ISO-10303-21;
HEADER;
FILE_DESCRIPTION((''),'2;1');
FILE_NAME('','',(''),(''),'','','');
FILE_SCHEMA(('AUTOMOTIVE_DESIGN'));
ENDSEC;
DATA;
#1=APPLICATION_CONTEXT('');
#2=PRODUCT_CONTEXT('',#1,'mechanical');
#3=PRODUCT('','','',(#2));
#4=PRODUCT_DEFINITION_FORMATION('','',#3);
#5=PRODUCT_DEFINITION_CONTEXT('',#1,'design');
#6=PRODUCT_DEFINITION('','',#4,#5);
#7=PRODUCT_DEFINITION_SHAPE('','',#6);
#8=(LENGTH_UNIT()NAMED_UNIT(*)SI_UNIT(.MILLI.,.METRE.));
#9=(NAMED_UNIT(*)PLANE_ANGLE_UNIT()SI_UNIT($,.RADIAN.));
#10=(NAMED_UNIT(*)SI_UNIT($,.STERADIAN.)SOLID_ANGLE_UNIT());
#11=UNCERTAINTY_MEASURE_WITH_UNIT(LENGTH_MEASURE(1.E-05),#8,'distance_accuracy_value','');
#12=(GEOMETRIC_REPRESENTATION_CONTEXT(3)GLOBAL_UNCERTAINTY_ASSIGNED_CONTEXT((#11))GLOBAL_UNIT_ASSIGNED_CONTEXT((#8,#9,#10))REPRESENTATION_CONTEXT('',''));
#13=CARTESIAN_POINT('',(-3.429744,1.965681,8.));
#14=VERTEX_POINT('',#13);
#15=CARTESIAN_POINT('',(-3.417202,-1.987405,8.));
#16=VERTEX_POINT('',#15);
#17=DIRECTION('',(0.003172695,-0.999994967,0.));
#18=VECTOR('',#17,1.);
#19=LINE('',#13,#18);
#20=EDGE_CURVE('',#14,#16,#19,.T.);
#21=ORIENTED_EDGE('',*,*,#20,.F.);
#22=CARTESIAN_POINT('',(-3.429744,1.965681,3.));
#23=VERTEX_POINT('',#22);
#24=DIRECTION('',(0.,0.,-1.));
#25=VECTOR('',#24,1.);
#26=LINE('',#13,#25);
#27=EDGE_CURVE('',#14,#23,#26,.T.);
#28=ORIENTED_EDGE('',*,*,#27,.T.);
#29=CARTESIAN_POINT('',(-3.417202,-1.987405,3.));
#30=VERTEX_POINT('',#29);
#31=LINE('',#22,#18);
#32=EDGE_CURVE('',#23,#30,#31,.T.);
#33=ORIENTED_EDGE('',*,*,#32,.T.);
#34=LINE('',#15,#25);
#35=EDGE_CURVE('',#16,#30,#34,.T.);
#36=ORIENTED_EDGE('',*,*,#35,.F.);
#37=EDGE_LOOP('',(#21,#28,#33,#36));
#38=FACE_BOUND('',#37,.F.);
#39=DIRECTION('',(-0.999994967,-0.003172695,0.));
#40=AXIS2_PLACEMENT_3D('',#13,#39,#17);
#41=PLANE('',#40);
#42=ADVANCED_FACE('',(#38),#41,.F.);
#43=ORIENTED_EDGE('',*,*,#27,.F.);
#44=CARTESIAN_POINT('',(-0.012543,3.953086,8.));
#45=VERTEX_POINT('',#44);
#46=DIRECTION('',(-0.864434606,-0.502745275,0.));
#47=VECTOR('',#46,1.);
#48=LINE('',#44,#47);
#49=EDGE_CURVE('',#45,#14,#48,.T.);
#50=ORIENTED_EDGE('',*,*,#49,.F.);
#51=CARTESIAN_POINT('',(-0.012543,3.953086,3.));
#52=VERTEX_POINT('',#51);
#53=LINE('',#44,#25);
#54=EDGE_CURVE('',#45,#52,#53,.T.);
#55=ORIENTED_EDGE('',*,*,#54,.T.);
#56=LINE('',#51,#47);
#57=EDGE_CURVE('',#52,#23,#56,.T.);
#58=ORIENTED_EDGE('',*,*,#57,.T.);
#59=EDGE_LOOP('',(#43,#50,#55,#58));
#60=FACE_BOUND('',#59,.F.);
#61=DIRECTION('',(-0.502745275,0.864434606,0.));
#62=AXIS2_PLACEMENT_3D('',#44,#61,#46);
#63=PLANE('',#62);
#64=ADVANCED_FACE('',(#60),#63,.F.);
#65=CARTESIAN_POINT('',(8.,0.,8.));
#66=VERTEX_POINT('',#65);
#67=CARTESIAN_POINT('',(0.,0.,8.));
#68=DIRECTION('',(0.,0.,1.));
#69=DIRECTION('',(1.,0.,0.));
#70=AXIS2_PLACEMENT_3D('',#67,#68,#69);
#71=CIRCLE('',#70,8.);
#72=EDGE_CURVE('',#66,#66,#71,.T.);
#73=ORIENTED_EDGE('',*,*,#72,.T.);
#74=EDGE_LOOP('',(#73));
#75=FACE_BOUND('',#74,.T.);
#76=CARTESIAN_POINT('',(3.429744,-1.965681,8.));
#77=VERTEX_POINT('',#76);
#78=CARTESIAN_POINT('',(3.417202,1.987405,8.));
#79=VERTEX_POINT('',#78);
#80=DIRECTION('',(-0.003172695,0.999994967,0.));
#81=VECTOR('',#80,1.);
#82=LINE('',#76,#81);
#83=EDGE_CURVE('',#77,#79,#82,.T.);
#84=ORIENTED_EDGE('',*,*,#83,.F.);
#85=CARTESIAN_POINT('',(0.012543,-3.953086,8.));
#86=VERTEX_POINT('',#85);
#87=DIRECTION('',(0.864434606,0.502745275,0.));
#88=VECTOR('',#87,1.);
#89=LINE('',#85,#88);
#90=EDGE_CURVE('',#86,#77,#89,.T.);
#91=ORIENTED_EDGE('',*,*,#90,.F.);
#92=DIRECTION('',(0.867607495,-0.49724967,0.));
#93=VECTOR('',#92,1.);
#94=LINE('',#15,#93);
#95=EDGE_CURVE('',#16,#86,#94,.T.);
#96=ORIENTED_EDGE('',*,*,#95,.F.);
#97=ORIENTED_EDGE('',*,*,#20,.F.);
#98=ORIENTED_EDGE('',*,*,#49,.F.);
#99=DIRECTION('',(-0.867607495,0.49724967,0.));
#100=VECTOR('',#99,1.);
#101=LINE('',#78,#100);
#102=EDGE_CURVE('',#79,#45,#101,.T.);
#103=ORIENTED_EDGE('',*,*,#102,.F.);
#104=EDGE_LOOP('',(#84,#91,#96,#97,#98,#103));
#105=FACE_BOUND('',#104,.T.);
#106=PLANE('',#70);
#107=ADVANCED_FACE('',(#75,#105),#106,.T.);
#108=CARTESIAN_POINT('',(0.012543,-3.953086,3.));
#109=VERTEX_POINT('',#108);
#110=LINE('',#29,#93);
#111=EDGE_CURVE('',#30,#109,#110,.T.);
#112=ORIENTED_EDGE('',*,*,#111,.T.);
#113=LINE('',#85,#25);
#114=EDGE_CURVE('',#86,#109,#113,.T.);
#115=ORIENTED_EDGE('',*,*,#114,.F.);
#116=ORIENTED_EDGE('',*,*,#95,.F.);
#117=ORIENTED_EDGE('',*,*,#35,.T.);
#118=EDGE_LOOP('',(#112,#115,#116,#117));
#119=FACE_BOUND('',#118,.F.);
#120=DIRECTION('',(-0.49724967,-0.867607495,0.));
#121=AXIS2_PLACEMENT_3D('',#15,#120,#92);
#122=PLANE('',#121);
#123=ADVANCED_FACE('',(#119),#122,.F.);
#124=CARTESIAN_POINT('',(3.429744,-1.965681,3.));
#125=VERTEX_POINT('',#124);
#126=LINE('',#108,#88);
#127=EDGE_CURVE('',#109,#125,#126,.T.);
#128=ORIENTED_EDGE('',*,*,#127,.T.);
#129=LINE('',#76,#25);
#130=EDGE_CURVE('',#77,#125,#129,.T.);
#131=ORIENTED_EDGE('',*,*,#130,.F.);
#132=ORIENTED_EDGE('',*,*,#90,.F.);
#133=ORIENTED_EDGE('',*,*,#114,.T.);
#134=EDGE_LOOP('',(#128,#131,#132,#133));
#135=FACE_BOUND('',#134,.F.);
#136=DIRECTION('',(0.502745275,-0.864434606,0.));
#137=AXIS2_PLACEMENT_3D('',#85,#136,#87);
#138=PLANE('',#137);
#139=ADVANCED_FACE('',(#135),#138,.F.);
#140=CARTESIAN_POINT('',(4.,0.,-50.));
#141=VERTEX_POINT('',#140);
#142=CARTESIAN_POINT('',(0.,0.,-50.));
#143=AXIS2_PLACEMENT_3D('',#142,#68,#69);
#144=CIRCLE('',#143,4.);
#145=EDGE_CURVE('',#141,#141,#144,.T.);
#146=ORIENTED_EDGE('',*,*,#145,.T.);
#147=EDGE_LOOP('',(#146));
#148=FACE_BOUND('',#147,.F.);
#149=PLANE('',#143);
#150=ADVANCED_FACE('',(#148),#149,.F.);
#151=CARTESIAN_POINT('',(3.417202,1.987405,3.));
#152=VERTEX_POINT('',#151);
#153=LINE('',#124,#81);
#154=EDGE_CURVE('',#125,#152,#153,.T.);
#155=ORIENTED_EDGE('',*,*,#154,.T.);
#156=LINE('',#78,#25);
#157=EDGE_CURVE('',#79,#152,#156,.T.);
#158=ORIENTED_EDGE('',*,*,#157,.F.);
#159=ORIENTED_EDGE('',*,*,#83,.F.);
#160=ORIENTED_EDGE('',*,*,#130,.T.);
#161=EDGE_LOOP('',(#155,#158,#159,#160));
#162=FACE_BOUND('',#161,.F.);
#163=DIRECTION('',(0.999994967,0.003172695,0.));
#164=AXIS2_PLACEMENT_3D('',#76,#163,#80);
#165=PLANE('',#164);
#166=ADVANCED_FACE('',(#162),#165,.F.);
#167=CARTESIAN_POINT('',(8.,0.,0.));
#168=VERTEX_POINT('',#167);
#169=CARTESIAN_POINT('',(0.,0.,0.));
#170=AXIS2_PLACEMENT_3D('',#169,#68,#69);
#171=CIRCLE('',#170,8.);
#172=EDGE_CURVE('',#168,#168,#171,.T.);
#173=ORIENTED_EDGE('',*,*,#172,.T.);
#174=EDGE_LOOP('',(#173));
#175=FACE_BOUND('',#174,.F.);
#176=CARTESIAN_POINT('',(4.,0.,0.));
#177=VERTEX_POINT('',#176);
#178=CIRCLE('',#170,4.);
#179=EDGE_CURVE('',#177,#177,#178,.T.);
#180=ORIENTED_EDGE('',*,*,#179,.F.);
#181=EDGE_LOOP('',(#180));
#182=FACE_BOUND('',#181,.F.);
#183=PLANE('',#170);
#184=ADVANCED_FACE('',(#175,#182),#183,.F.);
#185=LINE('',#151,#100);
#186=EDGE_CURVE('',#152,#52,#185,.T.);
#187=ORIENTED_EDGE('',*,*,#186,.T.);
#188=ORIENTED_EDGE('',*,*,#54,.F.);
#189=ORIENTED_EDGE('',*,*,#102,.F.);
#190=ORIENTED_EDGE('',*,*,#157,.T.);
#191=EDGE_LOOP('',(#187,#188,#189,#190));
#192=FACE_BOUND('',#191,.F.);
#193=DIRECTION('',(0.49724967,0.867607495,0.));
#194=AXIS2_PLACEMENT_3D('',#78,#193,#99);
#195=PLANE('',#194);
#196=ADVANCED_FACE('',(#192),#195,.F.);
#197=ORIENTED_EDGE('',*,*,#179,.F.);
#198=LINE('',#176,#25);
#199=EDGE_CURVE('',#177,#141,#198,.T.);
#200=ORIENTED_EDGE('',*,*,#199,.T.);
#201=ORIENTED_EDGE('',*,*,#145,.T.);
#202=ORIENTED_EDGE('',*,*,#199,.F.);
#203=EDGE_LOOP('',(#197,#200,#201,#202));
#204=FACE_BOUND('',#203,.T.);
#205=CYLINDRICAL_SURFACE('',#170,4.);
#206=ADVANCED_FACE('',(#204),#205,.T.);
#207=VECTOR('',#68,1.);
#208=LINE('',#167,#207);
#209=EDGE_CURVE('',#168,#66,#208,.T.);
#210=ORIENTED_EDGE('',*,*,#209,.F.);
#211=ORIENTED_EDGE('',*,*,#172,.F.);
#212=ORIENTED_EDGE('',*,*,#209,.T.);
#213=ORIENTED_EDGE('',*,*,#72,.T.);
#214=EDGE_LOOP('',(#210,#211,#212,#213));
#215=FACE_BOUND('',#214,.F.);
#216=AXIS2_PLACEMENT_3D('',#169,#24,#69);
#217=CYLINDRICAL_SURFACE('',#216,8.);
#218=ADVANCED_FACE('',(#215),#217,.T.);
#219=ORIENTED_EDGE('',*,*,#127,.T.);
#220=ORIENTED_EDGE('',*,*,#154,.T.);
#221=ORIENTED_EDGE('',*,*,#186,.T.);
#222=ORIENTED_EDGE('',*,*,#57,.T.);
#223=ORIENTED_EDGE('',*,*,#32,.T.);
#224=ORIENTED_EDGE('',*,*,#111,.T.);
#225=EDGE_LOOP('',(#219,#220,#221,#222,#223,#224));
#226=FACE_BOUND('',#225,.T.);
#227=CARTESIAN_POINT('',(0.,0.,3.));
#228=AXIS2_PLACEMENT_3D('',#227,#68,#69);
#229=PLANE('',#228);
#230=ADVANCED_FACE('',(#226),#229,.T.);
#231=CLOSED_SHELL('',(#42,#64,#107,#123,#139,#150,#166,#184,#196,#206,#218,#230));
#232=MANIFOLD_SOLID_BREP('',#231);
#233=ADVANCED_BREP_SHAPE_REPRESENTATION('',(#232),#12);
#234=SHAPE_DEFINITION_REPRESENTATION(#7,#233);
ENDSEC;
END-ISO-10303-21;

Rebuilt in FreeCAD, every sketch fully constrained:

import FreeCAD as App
import Part
import Sketcher

V = App.Vector
Q = App.Units.Quantity

doc = App.newDocument("Part")
body = doc.addObject("PartDesign::Body", "Body")

sketch1 = body.newObject("Sketcher::SketchObject", "Sketch")
sketch1.AttachmentSupport = (doc.getObject("XY_Plane"), [""])
sketch1.MapMode = "FlatFace"
sketch1.addGeometry(Part.Circle(V(0, 0, 0), V(0, 0, 1), 4), False)
sketch1.addConstraint(Sketcher.Constraint("Coincident", 0, 3, -1, 1))
sketch1.addConstraint(Sketcher.Constraint("Diameter", 0, Q("8 mm")))
pad1 = body.newObject("PartDesign::Pad", "Pad")
pad1.Profile = sketch1
pad1.Length = 50
pad1.Reversed = True

sketch2 = body.newObject("Sketcher::SketchObject", "Sketch001")
sketch2.AttachmentSupport = (doc.getObject("XY_Plane"), [""])
sketch2.MapMode = "FlatFace"
sketch2.addGeometry(Part.Circle(V(0, 0, 0), V(0, 0, 1), 8), False)
sketch2.addConstraint(Sketcher.Constraint("Coincident", 0, 3, -1, 1))
sketch2.addConstraint(Sketcher.Constraint("Diameter", 0, Q("16 mm")))
pad2 = body.newObject("PartDesign::Pad", "Pad001")
pad2.Profile = sketch2
pad2.Length = 8

sketch3 = body.newObject("Sketcher::SketchObject", "Sketch002")
sketch3.AttachmentSupport = (doc.getObject("XY_Plane"), [""])
sketch3.MapMode = "FlatFace"
sketch3.AttachmentOffset = App.Placement(V(0, 0, 8), App.Rotation())
sketch3.addGeometry(Part.LineSegment(V(-0.012543, 3.953086, 0), V(-3.429744, 1.965681, 0)), False)
sketch3.addGeometry(Part.LineSegment(V(-3.429744, 1.965681, 0), V(-3.417202, -1.987405, 0)), False)
sketch3.addGeometry(Part.LineSegment(V(-3.417202, -1.987405, 0), V(0.012543, -3.953086, 0)), False)
sketch3.addGeometry(Part.LineSegment(V(0.012543, -3.953086, 0), V(3.429744, -1.965681, 0)), False)
sketch3.addGeometry(Part.LineSegment(V(3.429744, -1.965681, 0), V(3.417202, 1.987405, 0)), False)
sketch3.addGeometry(Part.LineSegment(V(3.417202, 1.987405, 0), V(-0.012543, 3.953086, 0)), False)
sketch3.addConstraint(Sketcher.Constraint("Coincident", 0, 2, 1, 1))
sketch3.addConstraint(Sketcher.Constraint("Coincident", 1, 2, 2, 1))
sketch3.addConstraint(Sketcher.Constraint("Coincident", 2, 2, 3, 1))
sketch3.addConstraint(Sketcher.Constraint("Coincident", 3, 2, 4, 1))
sketch3.addConstraint(Sketcher.Constraint("Coincident", 4, 2, 5, 1))
sketch3.addConstraint(Sketcher.Constraint("Coincident", 5, 2, 0, 1))
sketch3.addConstraint(Sketcher.Constraint("Symmetric", 0, 2, 3, 2, -1, 1))
sketch3.addConstraint(Sketcher.Constraint("Symmetric", 1, 2, 4, 2, -1, 1))
sketch3.addConstraint(Sketcher.Constraint("Symmetric", 2, 2, 5, 2, -1, 1))
sketch3.addConstraint(Sketcher.Constraint("Equal", 0, 1))
sketch3.addConstraint(Sketcher.Constraint("Equal", 1, 2))
sketch3.addConstraint(Sketcher.Constraint("DistanceX", 2, 2, 3, 2, Q("3.417201 mm")))
sketch3.addConstraint(Sketcher.Constraint("DistanceY", -1, 1, 0, 2, Q("1.965681 mm")))
sketch3.addConstraint(Sketcher.Constraint("DistanceX", 0, 2, 1, 2, Q("0.012542 mm")))
sketch3.addConstraint(Sketcher.Constraint("DistanceY", 2, 2, 1, 2, Q("1.965681 mm")))
pocket1 = body.newObject("PartDesign::Pocket", "Pocket")
pocket1.Profile = sketch3
pocket1.Length = 5

doc.recompute()
